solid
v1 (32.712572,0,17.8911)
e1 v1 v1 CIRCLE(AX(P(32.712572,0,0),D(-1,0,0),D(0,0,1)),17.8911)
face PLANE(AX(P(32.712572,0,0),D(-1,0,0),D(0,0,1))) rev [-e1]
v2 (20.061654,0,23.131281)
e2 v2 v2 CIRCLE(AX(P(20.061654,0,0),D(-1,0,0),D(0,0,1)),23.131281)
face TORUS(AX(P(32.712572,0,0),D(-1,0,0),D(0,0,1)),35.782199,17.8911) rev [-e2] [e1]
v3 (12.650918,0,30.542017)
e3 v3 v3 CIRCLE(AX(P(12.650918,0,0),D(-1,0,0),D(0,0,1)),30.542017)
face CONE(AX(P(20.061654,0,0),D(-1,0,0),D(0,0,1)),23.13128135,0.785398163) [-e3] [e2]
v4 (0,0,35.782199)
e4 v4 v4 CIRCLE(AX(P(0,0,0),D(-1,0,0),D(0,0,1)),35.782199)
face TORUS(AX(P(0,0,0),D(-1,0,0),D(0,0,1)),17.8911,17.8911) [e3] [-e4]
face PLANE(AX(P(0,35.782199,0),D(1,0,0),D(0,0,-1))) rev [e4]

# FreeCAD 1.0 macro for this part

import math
import FreeCAD as App
import Part
import Sketcher
from FreeCAD import Vector
Q = App.Units.Quantity

doc = App.newDocument("Part")
body = doc.addObject("PartDesign::Body", "Body")

sketch1 = body.newObject("Sketcher::SketchObject", "Sketch")
sketch1.AttachmentSupport = (doc.getObject("XY_Plane"), [""])
sketch1.MapMode = "FlatFace"
sketch1.addGeometry([
    Part.LineSegment(Vector(0, 35.782199, 0), Vector(0, 0, 0)),
    Part.LineSegment(Vector(0, 0, 0), Vector(32.712572, 0, 0)),
    Part.LineSegment(Vector(32.712572, 0, 0), Vector(32.712572, 17.8911, 0)),
    Part.ArcOfCircle(Part.Circle(Vector(32.712572, 35.782199, 0), Vector(0, 0, 1), 17.8911), math.radians(-135), math.radians(-90)),
    Part.LineSegment(Vector(20.061654, 23.131281, 0), Vector(12.650918, 30.542017, 0)),
    Part.ArcOfCircle(Part.Circle(Vector(0, 17.8911, 0), Vector(0, 0, 1), 17.8911), math.radians(45), math.radians(90)),
], False)
sketch1.addConstraint([
    Sketcher.Constraint("Coincident", 0, 2, 1, 1),
    Sketcher.Constraint("Coincident", 1, 2, 2, 1),
    Sketcher.Constraint("Coincident", 2, 2, 3, 2),
    Sketcher.Constraint("Tangent", 3, 1, 4, 1),
    Sketcher.Constraint("Tangent", 4, 2, 5, 1),
    Sketcher.Constraint("Coincident", 5, 2, 0, 1),
    Sketcher.Constraint("Vertical", 0),
    Sketcher.Constraint("Horizontal", 1),
    Sketcher.Constraint("Vertical", 2),
    Sketcher.Constraint("Coincident", 0, 2, -1, 1),
    Sketcher.Constraint("Equal", 3, 5),
    Sketcher.Constraint("PointOnObject", 5, 3, -2),
    Sketcher.Constraint("Horizontal", 5, 3, 2, 2),
    Sketcher.Constraint("Vertical", 3, 3, 1, 2),
    Sketcher.Constraint("Angle", 4, Q("135 deg")),
    Sketcher.Constraint("Radius", 3, 17.8911),
    Sketcher.Constraint("DistanceY", 0, 2, 0, 1, 35.782199),
])
revolution = body.newObject("PartDesign::Revolution", "Revolution")
revolution.Profile = sketch1
revolution.ReferenceAxis = (sketch1, ["H_Axis"])
revolution.Angle = 360

doc.recompute()
